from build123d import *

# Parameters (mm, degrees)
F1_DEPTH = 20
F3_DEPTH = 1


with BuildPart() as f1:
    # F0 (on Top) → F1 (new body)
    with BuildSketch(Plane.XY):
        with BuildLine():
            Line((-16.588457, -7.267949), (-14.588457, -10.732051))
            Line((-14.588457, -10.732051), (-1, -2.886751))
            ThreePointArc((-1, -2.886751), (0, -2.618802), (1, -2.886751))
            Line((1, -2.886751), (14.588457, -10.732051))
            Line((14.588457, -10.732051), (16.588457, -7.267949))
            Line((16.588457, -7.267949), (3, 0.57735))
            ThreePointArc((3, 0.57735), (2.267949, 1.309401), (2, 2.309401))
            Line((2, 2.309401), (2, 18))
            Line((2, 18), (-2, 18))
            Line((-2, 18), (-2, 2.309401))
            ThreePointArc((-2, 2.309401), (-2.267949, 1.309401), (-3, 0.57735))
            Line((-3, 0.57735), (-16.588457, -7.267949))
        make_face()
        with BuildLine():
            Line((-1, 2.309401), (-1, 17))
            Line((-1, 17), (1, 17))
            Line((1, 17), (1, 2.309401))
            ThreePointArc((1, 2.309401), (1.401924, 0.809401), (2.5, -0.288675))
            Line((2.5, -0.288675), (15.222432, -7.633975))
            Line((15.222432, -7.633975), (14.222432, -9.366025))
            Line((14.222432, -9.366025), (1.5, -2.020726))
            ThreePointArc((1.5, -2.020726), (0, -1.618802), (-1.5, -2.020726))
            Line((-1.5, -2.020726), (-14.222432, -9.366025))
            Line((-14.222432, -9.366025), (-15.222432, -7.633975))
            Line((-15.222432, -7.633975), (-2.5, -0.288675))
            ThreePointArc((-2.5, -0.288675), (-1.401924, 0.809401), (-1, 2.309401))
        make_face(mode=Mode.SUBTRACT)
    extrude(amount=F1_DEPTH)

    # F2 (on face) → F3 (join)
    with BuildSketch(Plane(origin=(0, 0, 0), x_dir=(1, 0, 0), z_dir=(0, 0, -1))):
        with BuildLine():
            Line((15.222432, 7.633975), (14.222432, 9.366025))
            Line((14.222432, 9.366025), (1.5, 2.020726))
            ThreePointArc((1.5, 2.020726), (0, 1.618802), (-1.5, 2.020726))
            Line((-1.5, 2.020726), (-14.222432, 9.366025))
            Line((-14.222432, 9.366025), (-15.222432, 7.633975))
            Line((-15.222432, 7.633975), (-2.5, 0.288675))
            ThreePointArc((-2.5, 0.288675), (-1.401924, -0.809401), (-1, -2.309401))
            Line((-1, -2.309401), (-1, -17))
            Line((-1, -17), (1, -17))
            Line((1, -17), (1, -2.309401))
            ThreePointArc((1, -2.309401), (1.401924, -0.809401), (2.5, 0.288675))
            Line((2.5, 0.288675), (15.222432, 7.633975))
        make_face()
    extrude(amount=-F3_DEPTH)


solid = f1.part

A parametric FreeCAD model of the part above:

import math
import FreeCAD as App
import Part
import Sketcher

V = App.Vector
Q = App.Units.Quantity

doc = App.newDocument("Part")
body = doc.addObject("PartDesign::Body", "Body")

# Sketch on XY plane
sketch1 = body.newObject("Sketcher::SketchObject", "Sketch")
sketch1.AttachmentSupport = (doc.getObject("XY_Plane"), [""])
sketch1.MapMode = "FlatFace"
sketch1.addGeometry(Part.LineSegment(V(-16.6, -7.3, 0), V(-14.6, -10.7, 0)), False)
sketch1.addGeometry(Part.LineSegment(V(-14.6, -10.7, 0), V(-1, -2.9, 0)), False)
sketch1.addGeometry(Part.ArcOfCircle(Part.Circle(V(0, -4.6, 0), V(0, 0, 1), 2), math.radians(60), math.radians(120)), False)
sketch1.addGeometry(Part.LineSegment(V(1, -2.9, 0), V(14.6, -10.7, 0)), False)
sketch1.addGeometry(Part.LineSegment(V(14.6, -10.7, 0), V(16.6, -7.3, 0)), False)
sketch1.addGeometry(Part.LineSegment(V(16.6, -7.3, 0), V(3, 0.6, 0)), False)
sketch1.addGeometry(Part.ArcOfCircle(Part.Circle(V(4, 2.3, 0), V(0, 0, 1), 2), math.radians(180), math.radians(240)), False)
sketch1.addGeometry(Part.LineSegment(V(2, 2.3, 0), V(2, 18, 0)), False)
sketch1.addGeometry(Part.LineSegment(V(2, 18, 0), V(-2, 18, 0)), False)
sketch1.addGeometry(Part.LineSegment(V(-2, 18, 0), V(-2, 2.3, 0)), False)
sketch1.addGeometry(Part.ArcOfCircle(Part.Circle(V(-4, 2.3, 0), V(0, 0, 1), 2), math.radians(-60), math.radians(0)), False)
sketch1.addGeometry(Part.LineSegment(V(-3, 0.6, 0), V(-16.6, -7.3, 0)), False)
sketch1.addGeometry(Part.ArcOfCircle(Part.Circle(V(-4, 2.3, 0), V(0, 0, 1), 3), math.radians(-60), math.radians(0)), False)
sketch1.addGeometry(Part.LineSegment(V(-1, 2.3, 0), V(-1, 17, 0)), False)
sketch1.addGeometry(Part.LineSegment(V(-1, 17, 0), V(1, 17, 0)), False)
sketch1.addGeometry(Part.LineSegment(V(1, 17, 0), V(1, 2.3, 0)), False)
sketch1.addGeometry(Part.ArcOfCircle(Part.Circle(V(4, 2.3, 0), V(0, 0, 1), 3), math.radians(-180), math.radians(-120)), False)
sketch1.addGeometry(Part.LineSegment(V(2.5, -0.3, 0), V(15.2, -7.6, 0)), False)
sketch1.addGeometry(Part.LineSegment(V(15.2, -7.6, 0), V(14.2, -9.4, 0)), False)
sketch1.addGeometry(Part.LineSegment(V(14.2, -9.4, 0), V(1.5, -2, 0)), False)
sketch1.addGeometry(Part.ArcOfCircle(Part.Circle(V(0, -4.6, 0), V(0, 0, 1), 3), math.radians(60), math.radians(120)), False)
sketch1.addGeometry(Part.LineSegment(V(-1.5, -2, 0), V(-14.2, -9.4, 0)), False)
sketch1.addGeometry(Part.LineSegment(V(-14.2, -9.4, 0), V(-15.2, -7.6, 0)), False)
sketch1.addGeometry(Part.LineSegment(V(-15.2, -7.6, 0), V(-2.5, -0.3, 0)), False)
sketch1.addConstraint(Sketcher.Constraint("Coincident", 0, 2, 1, 1))
sketch1.addConstraint(Sketcher.Constraint("Tangent", 1, 2, 2, 2))
sketch1.addConstraint(Sketcher.Constraint("Tangent", 2, 1, 3, 1))
sketch1.addConstraint(Sketcher.Constraint("Coincident", 3, 2, 4, 1))
sketch1.addConstraint(Sketcher.Constraint("Coincident", 4, 2, 5, 1))
sketch1.addConstraint(Sketcher.Constraint("Tangent", 5, 2, 6, 2))
sketch1.addConstraint(Sketcher.Constraint("Tangent", 6, 1, 7, 1))
sketch1.addConstraint(Sketcher.Constraint("Coincident", 7, 2, 8, 1))
sketch1.addConstraint(Sketcher.Constraint("Coincident", 8, 2, 9, 1))
sketch1.addConstraint(Sketcher.Constraint("Tangent", 9, 2, 10, 2))
sketch1.addConstraint(Sketcher.Constraint("Tangent", 10, 1, 11, 1))
sketch1.addConstraint(Sketcher.Constraint("Coincident", 11, 2, 0, 1))
sketch1.addConstraint(Sketcher.Constraint("Tangent", 12, 2, 13, 1))
sketch1.addConstraint(Sketcher.Constraint("Coincident", 13, 2, 14, 1))
sketch1.addConstraint(Sketcher.Constraint("Coincident", 14, 2, 15, 1))
sketch1.addConstraint(Sketcher.Constraint("Tangent", 15, 2, 16, 1))
sketch1.addConstraint(Sketcher.Constraint("Tangent", 16, 2, 17, 1))
sketch1.addConstraint(Sketcher.Constraint("Coincident", 17, 2, 18, 1))
sketch1.addConstraint(Sketcher.Constraint("Coincident", 18, 2, 19, 1))
sketch1.addConstraint(Sketcher.Constraint("Tangent", 19, 2, 20, 1))
sketch1.addConstraint(Sketcher.Constraint("Tangent", 20, 2, 21, 1))
sketch1.addConstraint(Sketcher.Constraint("Coincident", 21, 2, 22, 1))
sketch1.addConstraint(Sketcher.Constraint("Coincident", 22, 2, 23, 1))
sketch1.addConstraint(Sketcher.Constraint("Tangent", 23, 2, 12, 1))
sketch1.addConstraint(Sketcher.Constraint("Vertical", 7))
sketch1.addConstraint(Sketcher.Constraint("Horizontal", 8))
sketch1.addConstraint(Sketcher.Constraint("Vertical", 9))
sketch1.addConstraint(Sketcher.Constraint("Vertical", 13))
sketch1.addConstraint(Sketcher.Constraint("Horizontal", 14))
sketch1.addConstraint(Sketcher.Constraint("Vertical", 15))
sketch1.addConstraint(Sketcher.Constraint("Coincident", 12, 3, 10, 3))
sketch1.addConstraint(Sketcher.Constraint("Coincident", 16, 3, 6, 3))
sketch1.addConstraint(Sketcher.Constraint("Coincident", 20, 3, 2, 3))
sketch1.addConstraint(Sketcher.Constraint("Equal", 2, 6))
sketch1.addConstraint(Sketcher.Constraint("Equal", 6, 10))
sketch1.addConstraint(Sketcher.Constraint("Equal", 12, 16))
sketch1.addConstraint(Sketcher.Constraint("Equal", 16, 20))
sketch1.addConstraint(Sketcher.Constraint("Symmetric", 6, 3, 10, 3, -2))
sketch1.addConstraint(Sketcher.Constraint("Symmetric", 1, 2, 2, 1, -2))
sketch1.addConstraint(Sketcher.Constraint("Symmetric", 4, 2, 11, 2, -2))
sketch1.addConstraint(Sketcher.Constraint("Symmetric", 18, 2, 21, 2, -2))
sketch1.addConstraint(Sketcher.Constraint("Symmetric", 17, 2, 22, 2, -2))
sketch1.addConstraint(Sketcher.Constraint("Perpendicular", 0, 1))
sketch1.addConstraint(Sketcher.Constraint("Perpendicular", 3, 4))
sketch1.addConstraint(Sketcher.Constraint("Perpendicular", 4, 5))
sketch1.addConstraint(Sketcher.Constraint("Parallel", 5, 17))
sketch1.addConstraint(Sketcher.Constraint("Perpendicular", 17, 18))
sketch1.addConstraint(Sketcher.Constraint("Perpendicular", 18, 19))
sketch1.addConstraint(Sketcher.Constraint("Vertical", 1, 2, 12, 2))
sketch1.addConstraint(Sketcher.Constraint("Equal", 3, 5))
sketch1.addConstraint(Sketcher.Constraint("Radius", 2, 2.000001))
sketch1.addConstraint(Sketcher.Constraint("Radius", 12, 3.000001))
sketch1.addConstraint(Sketcher.Constraint("DistanceX", 8, 2, 8, 1, 4.0))
sketch1.addConstraint(Sketcher.Constraint("DistanceY", -1, 1, 7, 2, 18.0))
sketch1.addConstraint(Sketcher.Constraint("DistanceY", -1, 1, 13, 2, 17.0))
sketch1.addConstraint(Sketcher.Constraint("DistanceY", 7, 1, 7, 2, 15.690599))
sketch1.addConstraint(Sketcher.Constraint("Distance", 1, 15.690599))
sketch1.addConstraint(Sketcher.Constraint("Distance", 17, 14.690599))
pad1 = body.newObject("PartDesign::Pad", "Pad")
pad1.Profile = sketch1
pad1.Length = 20

# Sketch on XY plane
sketch2 = body.newObject("Sketcher::SketchObject", "Sketch001")
sketch2.AttachmentSupport = (doc.getObject("XY_Plane"), [""])
sketch2.MapMode = "FlatFace"
sketch2.addGeometry(Part.LineSegment(V(15.2, -7.6, 0), V(14.2, -9.4, 0)), False)
sketch2.addGeometry(Part.LineSegment(V(14.2, -9.4, 0), V(1.5, -2, 0)), False)
sketch2.addGeometry(Part.ArcOfCircle(Part.Circle(V(0, -4.6, 0), V(0, 0, 1), 3), math.radians(60), math.radians(120)), False)
sketch2.addGeometry(Part.LineSegment(V(-1.5, -2, 0), V(-14.2, -9.4, 0)), False)
sketch2.addGeometry(Part.LineSegment(V(-14.2, -9.4, 0), V(-15.2, -7.6, 0)), False)
sketch2.addGeometry(Part.LineSegment(V(-15.2, -7.6, 0), V(-2.5, -0.3, 0)), False)
sketch2.addGeometry(Part.ArcOfCircle(Part.Circle(V(-4, 2.3, 0), V(0, 0, 1), 3), math.radians(-60), math.radians(0)), False)
sketch2.addGeometry(Part.LineSegment(V(-1, 2.3, 0), V(-1, 17, 0)), False)
sketch2.addGeometry(Part.LineSegment(V(-1, 17, 0), V(1, 17, 0)), False)
sketch2.addGeometry(Part.LineSegment(V(1, 17, 0), V(1, 2.3, 0)), False)
sketch2.addGeometry(Part.ArcOfCircle(Part.Circle(V(4, 2.3, 0), V(0, 0, 1), 3), math.radians(-180), math.radians(-120)), False)
sketch2.addGeometry(Part.LineSegment(V(2.5, -0.3, 0), V(15.2, -7.6, 0)), False)
sketch2.addConstraint(Sketcher.Constraint("Coincident", 0, 2, 1, 1))
sketch2.addConstraint(Sketcher.Constraint("Tangent", 1, 2, 2, 1))
sketch2.addConstraint(Sketcher.Constraint("Tangent", 2, 2, 3, 1))
sketch2.addConstraint(Sketcher.Constraint("Coincident", 3, 2, 4, 1))
sketch2.addConstraint(Sketcher.Constraint("Coincident", 4, 2, 5, 1))
sketch2.addConstraint(Sketcher.Constraint("Tangent", 5, 2, 6, 1))
sketch2.addConstraint(Sketcher.Constraint("Tangent", 6, 2, 7, 1))
sketch2.addConstraint(Sketcher.Constraint("Coincident", 7, 2, 8, 1))
sketch2.addConstraint(Sketcher.Constraint("Coincident", 8, 2, 9, 1))
sketch2.addConstraint(Sketcher.Constraint("Tangent", 9, 2, 10, 1))
sketch2.addConstraint(Sketcher.Constraint("Tangent", 10, 2, 11, 1))
sketch2.addConstraint(Sketcher.Constraint("Coincident", 11, 2, 0, 1))
sketch2.addConstraint(Sketcher.Constraint("Vertical", 7))
sketch2.addConstraint(Sketcher.Constraint("Horizontal", 8))
sketch2.addConstraint(Sketcher.Constraint("Vertical", 9))
sketch2.addConstraint(Sketcher.Constraint("Equal", 2, 6))
sketch2.addConstraint(Sketcher.Constraint("Equal", 6, 10))
sketch2.addConstraint(Sketcher.Constraint("Symmetric", 6, 3, 10, 3, -2))
sketch2.addConstraint(Sketcher.Constraint("Symmetric", 1, 2, 2, 2, -2))
sketch2.addConstraint(Sketcher.Constraint("Symmetric", 4, 2, 11, 2, -2))
sketch2.addConstraint(Sketcher.Constraint("Perpendicular", 0, 1))
sketch2.addConstraint(Sketcher.Constraint("Perpendicular", 3, 4))
sketch2.addConstraint(Sketcher.Constraint("Perpendicular", 4, 5))
sketch2.addConstraint(Sketcher.Constraint("Equal", 3, 5))
sketch2.addConstraint(Sketcher.Constraint("Radius", 2, 2.999999))
sketch2.addConstraint(Sketcher.Constraint("DistanceX", 8, 1, 8, 2, 2.0))
sketch2.addConstraint(Sketcher.Constraint("Angle", 0, Q("-120.000012 deg")))
sketch2.addConstraint(Sketcher.Constraint("DistanceY", -1, 1, 7, 2, 17.0))
sketch2.addConstraint(Sketcher.Constraint("DistanceY", 7, 1, 7, 2, 14.690599))
sketch2.addConstraint(Sketcher.Constraint("Distance", 1, 14.690599))
pad2 = body.newObject("PartDesign::Pad", "Pad001")
pad2.Profile = sketch2
pad2.Length = 1

doc.recompute()
